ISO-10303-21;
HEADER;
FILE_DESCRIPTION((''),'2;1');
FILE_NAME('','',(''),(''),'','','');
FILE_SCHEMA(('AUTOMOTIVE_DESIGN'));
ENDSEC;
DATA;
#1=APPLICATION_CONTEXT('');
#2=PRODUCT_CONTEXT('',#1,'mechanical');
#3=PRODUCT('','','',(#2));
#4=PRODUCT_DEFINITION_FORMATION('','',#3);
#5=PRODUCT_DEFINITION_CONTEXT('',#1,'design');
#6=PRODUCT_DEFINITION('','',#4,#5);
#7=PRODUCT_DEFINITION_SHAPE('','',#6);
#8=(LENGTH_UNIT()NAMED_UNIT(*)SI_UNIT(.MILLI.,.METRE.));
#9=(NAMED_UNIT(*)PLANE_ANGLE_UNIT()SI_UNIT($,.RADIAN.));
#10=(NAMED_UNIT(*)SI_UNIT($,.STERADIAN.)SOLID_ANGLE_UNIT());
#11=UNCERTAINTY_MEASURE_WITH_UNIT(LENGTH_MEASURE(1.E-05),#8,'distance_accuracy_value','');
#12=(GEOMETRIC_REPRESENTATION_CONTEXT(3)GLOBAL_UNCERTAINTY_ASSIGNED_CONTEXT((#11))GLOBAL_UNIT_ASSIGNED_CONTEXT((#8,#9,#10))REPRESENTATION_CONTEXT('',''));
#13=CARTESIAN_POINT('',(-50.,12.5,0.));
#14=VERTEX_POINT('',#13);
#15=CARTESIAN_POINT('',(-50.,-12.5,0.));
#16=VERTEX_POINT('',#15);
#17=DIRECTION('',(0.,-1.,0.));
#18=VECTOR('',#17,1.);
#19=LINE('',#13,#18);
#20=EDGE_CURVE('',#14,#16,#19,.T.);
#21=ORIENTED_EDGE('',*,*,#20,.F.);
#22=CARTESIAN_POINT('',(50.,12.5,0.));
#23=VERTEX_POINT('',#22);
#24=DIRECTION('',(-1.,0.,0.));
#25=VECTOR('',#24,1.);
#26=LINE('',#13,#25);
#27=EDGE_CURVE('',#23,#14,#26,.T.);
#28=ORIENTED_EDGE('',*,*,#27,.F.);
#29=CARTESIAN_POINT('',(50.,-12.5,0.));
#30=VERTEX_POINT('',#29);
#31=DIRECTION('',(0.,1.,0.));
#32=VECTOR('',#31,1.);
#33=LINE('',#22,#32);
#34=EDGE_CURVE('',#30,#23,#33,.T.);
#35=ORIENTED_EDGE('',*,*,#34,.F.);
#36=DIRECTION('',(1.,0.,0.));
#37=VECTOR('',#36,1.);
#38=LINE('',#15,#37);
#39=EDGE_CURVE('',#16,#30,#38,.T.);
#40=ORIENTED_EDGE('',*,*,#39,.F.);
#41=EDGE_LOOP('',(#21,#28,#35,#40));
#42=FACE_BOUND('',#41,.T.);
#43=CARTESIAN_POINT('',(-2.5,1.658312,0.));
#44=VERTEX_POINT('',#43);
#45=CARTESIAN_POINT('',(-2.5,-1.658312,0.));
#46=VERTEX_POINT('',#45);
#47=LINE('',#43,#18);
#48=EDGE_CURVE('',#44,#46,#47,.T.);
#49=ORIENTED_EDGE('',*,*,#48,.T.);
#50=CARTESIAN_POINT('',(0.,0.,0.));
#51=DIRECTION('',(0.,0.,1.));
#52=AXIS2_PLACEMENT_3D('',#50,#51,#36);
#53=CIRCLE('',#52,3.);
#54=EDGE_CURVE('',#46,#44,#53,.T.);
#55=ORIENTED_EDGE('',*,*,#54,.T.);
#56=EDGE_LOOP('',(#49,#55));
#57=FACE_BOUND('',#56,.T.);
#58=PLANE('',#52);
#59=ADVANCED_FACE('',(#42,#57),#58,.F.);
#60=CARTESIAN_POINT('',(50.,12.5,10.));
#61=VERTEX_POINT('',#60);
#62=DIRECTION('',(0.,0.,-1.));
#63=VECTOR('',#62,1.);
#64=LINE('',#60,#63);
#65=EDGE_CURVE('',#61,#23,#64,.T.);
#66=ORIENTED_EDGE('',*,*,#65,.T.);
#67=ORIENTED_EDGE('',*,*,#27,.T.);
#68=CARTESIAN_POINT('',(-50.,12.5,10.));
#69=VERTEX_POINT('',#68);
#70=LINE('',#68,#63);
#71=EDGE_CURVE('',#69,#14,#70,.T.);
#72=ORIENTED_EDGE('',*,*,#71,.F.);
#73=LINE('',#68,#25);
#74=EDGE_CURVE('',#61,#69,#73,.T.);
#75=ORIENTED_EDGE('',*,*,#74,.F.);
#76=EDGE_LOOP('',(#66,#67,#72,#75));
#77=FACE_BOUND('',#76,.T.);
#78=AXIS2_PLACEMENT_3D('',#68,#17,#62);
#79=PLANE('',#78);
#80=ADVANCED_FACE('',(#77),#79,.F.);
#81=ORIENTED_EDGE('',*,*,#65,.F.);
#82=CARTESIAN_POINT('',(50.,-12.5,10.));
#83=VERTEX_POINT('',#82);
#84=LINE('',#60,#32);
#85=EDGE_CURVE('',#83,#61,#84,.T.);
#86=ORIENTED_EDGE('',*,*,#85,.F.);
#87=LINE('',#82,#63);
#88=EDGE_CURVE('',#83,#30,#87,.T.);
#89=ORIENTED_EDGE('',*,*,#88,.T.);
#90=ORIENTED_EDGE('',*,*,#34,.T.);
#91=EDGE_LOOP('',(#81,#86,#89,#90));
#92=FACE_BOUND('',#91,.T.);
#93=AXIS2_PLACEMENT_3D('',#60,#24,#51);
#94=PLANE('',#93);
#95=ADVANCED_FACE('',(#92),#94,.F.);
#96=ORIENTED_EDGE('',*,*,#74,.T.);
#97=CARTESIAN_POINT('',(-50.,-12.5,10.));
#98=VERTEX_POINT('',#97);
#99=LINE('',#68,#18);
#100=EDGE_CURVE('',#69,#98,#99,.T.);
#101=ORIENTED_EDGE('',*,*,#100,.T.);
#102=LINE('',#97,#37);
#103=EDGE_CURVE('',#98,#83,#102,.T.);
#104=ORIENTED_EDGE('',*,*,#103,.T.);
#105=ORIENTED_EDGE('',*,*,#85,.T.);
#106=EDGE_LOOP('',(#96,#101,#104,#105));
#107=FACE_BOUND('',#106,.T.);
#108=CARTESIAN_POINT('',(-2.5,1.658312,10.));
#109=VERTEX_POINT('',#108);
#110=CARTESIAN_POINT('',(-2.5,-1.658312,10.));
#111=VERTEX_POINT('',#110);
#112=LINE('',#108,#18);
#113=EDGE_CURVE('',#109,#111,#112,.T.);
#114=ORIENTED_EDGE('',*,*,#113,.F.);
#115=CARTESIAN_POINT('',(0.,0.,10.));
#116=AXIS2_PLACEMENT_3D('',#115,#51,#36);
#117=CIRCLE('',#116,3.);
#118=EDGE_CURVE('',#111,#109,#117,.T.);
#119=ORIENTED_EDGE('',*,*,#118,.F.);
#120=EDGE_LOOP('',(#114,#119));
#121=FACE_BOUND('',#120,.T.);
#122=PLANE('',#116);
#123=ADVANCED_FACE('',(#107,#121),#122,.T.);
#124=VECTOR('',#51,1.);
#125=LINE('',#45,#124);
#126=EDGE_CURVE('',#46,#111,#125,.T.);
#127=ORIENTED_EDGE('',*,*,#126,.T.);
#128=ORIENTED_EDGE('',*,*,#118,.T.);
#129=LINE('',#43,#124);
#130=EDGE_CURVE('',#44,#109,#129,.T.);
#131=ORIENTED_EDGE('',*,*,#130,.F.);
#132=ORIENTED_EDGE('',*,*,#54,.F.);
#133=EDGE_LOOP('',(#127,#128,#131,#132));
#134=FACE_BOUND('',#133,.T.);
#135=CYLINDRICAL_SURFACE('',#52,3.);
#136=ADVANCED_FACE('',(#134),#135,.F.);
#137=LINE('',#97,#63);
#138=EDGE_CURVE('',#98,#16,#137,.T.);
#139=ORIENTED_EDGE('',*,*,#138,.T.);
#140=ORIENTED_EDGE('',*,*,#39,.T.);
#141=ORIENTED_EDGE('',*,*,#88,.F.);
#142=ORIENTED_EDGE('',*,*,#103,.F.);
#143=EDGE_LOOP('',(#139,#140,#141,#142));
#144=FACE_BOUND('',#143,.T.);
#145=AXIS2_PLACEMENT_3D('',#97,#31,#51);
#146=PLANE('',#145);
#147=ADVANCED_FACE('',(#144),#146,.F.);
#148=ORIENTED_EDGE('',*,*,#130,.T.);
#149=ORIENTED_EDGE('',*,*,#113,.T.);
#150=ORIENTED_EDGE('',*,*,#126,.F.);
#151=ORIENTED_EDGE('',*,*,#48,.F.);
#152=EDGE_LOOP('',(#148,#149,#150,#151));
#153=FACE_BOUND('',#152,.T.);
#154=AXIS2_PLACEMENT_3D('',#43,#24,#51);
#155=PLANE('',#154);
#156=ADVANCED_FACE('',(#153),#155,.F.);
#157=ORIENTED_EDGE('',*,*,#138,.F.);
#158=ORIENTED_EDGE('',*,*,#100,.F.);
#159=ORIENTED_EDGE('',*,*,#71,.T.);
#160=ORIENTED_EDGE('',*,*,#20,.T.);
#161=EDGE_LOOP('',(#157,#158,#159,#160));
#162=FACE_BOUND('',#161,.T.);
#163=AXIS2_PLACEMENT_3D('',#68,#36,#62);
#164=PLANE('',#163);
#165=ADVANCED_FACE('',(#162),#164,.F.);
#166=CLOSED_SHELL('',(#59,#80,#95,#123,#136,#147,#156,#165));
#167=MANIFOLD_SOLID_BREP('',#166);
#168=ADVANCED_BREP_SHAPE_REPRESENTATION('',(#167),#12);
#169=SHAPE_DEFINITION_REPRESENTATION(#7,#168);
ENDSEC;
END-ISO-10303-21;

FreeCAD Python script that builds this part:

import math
import FreeCAD as App
import Part
import Sketcher
from FreeCAD import Vector


def add_polygon(sketch, points):
    """Adds a closed chain of lines whose ends are joined by coincident constraints."""
    first, n = sketch.GeometryCount, len(points)
    for a, b in zip(points, points[1:] + points[:1]):
        sketch.addGeometry(Part.LineSegment(App.Vector(*a, 0), App.Vector(*b, 0)), False)
    for i in range(n):
        sketch.addConstraint(Sketcher.Constraint("Coincident", first + i, 2, first + (i + 1) % n, 1))

doc = App.newDocument("Part")
params = doc.addObject("Spreadsheet::Sheet", "Params")
for row, (alias, value) in enumerate([
    ("sketch1_width", "100 mm"),
    ("sketch1_height", "25 mm"),
    ("pad1_length", "10 mm"),
    ("sketch2_radius", "3 mm"),
    ("pocket1_length", "10 mm"),
], start=1):
    params.set(f"A{row}", alias)
    params.set(f"B{row}", "=" + value)
    params.setAlias(f"B{row}", alias)

body = doc.addObject("PartDesign::Body", "Body")

# Sketch on XY plane
sketch1 = doc.addObject("Sketcher::SketchObject", "Sketch")
body.addObject(sketch1)
sketch1.AttachmentSupport = (doc.XY_Plane, [""])
sketch1.MapMode = "FlatFace"
add_polygon(sketch1, [(-50, 12), (-50, -12), (50, -12), (50, 12)])  # lines 0-3
sketch1.addConstraint([
    Sketcher.Constraint("Vertical", 0),
    Sketcher.Constraint("Horizontal", 1),
    Sketcher.Constraint("Vertical", 2),
    Sketcher.Constraint("Horizontal", 3),
    Sketcher.Constraint("Symmetric", 0, 2, 2, 2, -1, 1),
    Sketcher.Constraint("DistanceX", 1, 1, 1, 2, 100.0),
    Sketcher.Constraint("DistanceY", 0, 2, 0, 1, 25.0),
])
sketch1.setExpression("Constraints[9]", "Params.sketch1_width")
sketch1.setExpression("Constraints[10]", "Params.sketch1_height")
pad1 = doc.addObject("PartDesign::Pad", "Pad")
body.addObject(pad1)
pad1.Profile = sketch1
pad1.setExpression("Length", "Params.pad1_length")

# Sketch on XY plane
sketch2 = doc.addObject("Sketcher::SketchObject", "Sketch001")
body.addObject(sketch2)
sketch2.AttachmentSupport = (doc.XY_Plane, [""])
sketch2.MapMode = "FlatFace"
sketch2.AttachmentOffset = App.Placement(Vector(0, 0, 10), App.Rotation())
sketch2.addGeometry([
    Part.LineSegment(Vector(-2.5, 1.7, 0), Vector(-2.5, -1.7, 0)),
    Part.ArcOfCircle(Part.Circle(Vector(0, 0, 0), Vector(0, 0, 1), 3), math.radians(-146), math.radians(146)),
], False)
sketch2.addConstraint([
    Sketcher.Constraint("Coincident", 0, 1, 1, 2),
    Sketcher.Constraint("Coincident", 1, 1, 0, 2),
    Sketcher.Constraint("Vertical", 0),
    Sketcher.Constraint("Coincident", 1, 3, -1, 1),
    Sketcher.Constraint("Radius", 1, 3.0),
    Sketcher.Constraint("DistanceX", 0, 1, -1, 1, 2.5),
])
sketch2.setExpression("Constraints[4]", "Params.sketch2_radius")
pocket1 = doc.addObject("PartDesign::Pocket", "Pocket")
body.addObject(pocket1)
pocket1.Profile = sketch2
pocket1.setExpression("Length", "Params.pocket1_length")

doc.recompute()
